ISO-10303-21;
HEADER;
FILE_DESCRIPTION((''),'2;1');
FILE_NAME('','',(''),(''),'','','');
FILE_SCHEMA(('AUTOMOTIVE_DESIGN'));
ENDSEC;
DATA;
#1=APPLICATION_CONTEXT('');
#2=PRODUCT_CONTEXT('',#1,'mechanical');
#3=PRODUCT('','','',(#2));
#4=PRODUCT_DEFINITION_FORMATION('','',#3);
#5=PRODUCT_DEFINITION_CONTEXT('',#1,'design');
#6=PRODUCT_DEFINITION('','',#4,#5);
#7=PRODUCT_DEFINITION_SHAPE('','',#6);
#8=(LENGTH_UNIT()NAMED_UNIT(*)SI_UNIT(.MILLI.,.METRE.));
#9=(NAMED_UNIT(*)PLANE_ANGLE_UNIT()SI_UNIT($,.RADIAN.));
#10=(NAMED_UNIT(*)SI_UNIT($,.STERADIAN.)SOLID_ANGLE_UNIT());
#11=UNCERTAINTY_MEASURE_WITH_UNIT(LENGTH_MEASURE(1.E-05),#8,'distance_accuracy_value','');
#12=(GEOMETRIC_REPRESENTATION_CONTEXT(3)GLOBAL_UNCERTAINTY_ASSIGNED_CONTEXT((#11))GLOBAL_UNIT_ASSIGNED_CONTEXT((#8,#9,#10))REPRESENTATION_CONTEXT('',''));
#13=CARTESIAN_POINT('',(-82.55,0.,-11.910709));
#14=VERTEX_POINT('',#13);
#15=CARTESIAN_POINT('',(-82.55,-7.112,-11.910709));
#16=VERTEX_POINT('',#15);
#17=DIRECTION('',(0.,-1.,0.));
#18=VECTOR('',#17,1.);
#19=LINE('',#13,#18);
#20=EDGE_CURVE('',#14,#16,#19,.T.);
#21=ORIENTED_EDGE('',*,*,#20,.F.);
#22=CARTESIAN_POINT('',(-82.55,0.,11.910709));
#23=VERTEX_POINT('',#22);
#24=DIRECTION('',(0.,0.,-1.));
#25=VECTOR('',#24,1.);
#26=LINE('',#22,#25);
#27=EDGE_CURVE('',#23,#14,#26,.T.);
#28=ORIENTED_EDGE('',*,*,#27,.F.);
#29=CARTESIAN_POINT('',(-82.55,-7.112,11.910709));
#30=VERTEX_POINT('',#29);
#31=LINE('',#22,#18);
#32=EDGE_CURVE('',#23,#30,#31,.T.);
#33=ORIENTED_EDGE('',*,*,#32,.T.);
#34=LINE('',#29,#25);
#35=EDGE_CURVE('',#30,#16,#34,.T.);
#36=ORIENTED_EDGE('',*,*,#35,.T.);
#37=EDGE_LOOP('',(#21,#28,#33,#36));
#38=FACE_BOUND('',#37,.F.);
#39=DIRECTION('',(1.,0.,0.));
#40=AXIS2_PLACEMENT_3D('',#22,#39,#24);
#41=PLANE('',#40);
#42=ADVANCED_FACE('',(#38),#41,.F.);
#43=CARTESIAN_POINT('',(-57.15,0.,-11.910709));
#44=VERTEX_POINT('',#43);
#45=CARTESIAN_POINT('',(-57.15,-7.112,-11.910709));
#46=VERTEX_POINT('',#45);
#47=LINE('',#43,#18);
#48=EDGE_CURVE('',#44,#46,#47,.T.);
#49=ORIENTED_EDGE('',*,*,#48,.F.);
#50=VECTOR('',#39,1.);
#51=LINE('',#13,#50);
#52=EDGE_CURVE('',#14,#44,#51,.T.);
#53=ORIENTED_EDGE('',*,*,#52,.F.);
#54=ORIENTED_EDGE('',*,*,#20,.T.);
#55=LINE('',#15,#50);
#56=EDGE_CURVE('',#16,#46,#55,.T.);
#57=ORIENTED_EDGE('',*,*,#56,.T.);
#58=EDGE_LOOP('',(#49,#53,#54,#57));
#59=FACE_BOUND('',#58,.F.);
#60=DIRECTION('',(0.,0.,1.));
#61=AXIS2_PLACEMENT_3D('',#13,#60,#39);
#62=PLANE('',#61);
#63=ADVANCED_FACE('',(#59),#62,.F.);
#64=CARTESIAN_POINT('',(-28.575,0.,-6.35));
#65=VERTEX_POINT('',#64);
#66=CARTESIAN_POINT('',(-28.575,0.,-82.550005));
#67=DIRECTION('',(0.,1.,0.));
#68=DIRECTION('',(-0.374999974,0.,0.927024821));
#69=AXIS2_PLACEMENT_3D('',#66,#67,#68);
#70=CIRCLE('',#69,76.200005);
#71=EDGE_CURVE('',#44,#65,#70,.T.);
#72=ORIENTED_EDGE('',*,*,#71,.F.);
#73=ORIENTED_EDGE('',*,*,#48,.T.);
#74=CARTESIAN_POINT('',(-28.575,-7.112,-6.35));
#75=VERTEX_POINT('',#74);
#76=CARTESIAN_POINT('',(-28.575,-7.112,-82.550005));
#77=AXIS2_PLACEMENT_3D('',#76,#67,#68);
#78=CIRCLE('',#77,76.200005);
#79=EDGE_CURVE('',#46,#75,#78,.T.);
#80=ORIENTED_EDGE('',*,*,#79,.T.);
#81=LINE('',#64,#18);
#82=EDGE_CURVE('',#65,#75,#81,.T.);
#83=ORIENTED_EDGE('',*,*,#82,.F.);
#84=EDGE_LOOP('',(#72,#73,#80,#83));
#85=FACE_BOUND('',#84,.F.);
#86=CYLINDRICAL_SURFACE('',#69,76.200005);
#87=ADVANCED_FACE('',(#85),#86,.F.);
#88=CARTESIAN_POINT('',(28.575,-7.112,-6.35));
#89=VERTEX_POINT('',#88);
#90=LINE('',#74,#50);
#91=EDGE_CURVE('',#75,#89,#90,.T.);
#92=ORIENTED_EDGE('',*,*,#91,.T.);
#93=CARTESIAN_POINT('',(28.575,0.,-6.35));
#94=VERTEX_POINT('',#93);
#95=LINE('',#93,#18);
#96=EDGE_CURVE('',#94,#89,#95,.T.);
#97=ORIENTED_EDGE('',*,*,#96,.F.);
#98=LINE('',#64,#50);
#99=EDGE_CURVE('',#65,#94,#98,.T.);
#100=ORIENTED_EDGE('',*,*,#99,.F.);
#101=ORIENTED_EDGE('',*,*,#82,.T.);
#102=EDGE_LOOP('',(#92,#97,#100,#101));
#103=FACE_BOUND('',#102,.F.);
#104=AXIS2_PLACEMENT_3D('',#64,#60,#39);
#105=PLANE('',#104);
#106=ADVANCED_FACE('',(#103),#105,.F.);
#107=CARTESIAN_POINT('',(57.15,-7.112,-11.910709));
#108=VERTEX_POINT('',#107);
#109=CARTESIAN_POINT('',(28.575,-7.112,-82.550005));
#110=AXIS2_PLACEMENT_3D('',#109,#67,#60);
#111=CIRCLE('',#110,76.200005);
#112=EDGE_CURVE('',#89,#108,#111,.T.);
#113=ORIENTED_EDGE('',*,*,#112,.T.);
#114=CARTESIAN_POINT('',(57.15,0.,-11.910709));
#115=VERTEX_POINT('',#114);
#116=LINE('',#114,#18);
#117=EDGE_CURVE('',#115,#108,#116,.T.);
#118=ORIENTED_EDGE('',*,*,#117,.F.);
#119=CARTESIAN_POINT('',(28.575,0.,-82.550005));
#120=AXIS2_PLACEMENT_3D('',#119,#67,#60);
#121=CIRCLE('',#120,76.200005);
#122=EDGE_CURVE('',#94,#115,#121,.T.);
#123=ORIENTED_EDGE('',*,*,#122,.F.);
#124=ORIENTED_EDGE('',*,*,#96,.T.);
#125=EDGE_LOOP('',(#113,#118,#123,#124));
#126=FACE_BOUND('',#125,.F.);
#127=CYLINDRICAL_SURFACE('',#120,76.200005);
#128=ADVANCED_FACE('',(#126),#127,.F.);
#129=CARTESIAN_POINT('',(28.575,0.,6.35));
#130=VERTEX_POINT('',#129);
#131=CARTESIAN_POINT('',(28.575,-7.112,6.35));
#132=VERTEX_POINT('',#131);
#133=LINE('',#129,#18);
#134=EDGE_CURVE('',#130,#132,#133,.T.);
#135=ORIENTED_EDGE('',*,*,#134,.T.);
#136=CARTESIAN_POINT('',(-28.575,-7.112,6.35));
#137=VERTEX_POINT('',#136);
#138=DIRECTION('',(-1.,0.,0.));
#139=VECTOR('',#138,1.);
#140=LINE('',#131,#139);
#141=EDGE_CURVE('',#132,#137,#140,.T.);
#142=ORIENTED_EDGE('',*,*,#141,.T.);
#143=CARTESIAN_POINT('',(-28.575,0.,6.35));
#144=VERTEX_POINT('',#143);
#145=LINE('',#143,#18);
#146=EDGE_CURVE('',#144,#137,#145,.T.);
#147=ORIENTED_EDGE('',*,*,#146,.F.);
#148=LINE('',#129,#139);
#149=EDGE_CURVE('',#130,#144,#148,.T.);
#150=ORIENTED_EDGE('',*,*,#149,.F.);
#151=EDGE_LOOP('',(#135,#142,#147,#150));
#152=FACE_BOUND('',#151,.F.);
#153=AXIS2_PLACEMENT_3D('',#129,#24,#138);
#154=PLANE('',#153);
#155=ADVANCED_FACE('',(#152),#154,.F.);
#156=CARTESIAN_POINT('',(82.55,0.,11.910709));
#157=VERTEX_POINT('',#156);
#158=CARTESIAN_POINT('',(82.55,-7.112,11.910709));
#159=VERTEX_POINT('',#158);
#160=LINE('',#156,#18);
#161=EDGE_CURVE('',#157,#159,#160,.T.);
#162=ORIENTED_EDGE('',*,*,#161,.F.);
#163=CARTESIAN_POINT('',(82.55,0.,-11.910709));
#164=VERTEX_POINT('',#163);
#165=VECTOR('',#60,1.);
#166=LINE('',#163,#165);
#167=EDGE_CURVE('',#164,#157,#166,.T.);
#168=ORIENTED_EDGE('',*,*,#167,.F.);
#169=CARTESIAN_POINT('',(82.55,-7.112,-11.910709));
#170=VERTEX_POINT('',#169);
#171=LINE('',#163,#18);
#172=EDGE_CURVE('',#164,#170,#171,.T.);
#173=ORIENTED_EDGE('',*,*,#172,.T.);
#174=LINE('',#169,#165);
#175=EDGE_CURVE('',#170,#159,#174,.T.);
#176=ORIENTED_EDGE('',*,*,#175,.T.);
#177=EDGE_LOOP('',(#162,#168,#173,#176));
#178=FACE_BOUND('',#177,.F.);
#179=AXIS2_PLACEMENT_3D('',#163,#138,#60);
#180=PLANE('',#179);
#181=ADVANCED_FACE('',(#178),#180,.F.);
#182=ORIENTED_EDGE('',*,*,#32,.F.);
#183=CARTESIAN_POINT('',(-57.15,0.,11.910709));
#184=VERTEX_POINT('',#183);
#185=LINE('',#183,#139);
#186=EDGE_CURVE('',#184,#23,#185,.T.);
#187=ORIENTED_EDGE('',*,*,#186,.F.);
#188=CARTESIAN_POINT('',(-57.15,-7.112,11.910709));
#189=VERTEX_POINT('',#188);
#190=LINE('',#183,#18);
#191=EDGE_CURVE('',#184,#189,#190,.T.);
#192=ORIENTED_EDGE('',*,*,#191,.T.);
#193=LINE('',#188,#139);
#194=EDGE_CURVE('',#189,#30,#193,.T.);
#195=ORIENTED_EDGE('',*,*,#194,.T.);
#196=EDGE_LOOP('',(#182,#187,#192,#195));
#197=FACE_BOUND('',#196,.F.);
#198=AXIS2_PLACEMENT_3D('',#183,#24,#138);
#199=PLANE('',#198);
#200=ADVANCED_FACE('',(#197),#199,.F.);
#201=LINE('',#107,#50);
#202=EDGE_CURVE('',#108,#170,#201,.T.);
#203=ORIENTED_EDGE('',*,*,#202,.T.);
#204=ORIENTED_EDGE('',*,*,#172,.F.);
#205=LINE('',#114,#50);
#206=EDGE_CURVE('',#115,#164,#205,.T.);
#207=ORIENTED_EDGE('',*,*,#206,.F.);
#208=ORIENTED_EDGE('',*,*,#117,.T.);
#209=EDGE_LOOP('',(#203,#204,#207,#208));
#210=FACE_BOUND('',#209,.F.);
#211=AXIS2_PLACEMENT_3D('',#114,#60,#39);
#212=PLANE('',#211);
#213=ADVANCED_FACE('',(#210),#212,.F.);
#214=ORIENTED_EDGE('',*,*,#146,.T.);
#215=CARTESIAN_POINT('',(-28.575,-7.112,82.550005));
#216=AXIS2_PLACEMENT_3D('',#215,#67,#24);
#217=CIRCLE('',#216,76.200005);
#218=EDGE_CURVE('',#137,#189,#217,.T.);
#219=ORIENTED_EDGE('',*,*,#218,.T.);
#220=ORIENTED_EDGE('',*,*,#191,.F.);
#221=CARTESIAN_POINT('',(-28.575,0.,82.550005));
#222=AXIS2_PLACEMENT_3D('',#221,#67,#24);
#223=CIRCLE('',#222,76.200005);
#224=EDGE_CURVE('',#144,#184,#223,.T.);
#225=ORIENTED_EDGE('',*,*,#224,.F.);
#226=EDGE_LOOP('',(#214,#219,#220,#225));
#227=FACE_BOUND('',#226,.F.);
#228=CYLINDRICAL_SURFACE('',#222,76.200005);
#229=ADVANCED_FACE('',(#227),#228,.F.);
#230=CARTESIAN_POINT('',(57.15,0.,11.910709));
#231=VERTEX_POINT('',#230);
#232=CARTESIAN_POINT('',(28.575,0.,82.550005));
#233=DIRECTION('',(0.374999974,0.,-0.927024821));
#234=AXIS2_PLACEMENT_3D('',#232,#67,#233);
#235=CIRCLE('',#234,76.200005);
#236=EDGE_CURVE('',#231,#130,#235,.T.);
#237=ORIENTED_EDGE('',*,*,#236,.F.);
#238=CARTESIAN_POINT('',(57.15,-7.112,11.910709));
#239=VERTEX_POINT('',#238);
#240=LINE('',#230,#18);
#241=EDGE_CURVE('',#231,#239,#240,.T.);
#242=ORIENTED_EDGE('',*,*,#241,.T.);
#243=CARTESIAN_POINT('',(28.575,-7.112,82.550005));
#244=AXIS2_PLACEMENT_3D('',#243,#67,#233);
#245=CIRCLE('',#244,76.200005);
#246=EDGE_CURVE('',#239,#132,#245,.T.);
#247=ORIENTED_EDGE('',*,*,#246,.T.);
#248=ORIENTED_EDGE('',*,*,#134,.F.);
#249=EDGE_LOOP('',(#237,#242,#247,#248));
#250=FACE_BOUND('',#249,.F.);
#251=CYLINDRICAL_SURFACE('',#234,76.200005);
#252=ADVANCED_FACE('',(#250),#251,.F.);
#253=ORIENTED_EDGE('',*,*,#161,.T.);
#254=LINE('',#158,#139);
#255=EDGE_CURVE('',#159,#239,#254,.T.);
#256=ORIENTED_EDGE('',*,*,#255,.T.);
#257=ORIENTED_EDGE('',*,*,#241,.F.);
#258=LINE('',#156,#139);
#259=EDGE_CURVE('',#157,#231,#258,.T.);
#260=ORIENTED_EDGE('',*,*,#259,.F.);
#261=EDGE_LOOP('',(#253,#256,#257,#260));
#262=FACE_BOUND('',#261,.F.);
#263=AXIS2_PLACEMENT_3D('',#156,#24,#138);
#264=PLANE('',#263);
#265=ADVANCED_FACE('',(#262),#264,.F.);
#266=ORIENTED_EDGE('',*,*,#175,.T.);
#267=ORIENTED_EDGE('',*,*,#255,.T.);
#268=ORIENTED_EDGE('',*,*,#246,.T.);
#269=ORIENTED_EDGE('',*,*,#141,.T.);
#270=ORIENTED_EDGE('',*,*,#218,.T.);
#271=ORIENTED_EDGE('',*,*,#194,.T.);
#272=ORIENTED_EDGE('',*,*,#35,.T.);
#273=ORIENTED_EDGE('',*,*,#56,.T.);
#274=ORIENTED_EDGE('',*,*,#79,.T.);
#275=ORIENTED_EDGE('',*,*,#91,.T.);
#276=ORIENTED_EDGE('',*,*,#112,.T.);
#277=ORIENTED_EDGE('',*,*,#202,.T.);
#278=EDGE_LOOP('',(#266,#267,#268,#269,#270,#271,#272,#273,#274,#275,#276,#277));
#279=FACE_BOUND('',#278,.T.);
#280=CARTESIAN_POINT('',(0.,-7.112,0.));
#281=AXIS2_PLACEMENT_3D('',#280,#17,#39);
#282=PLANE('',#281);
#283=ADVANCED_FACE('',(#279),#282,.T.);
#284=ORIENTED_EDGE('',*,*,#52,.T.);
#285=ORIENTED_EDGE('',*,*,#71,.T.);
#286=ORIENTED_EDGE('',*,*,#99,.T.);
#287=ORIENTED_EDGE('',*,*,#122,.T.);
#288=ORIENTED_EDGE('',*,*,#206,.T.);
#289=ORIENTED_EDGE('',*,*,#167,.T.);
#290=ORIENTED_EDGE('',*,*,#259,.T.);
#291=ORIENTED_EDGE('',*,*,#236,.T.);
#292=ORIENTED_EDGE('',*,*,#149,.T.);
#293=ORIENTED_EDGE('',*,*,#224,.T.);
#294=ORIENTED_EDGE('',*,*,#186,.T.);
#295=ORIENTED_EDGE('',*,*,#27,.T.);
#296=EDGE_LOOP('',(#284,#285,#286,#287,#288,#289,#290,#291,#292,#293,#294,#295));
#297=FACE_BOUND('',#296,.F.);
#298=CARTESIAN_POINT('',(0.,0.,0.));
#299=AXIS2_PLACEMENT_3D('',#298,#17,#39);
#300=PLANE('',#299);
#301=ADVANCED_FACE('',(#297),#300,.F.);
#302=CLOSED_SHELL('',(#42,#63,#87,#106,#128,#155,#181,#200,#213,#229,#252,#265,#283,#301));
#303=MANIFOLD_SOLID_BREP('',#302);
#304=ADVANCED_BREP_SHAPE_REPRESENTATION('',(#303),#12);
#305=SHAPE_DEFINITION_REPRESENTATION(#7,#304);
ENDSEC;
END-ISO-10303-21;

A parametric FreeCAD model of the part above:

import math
import FreeCAD as App
import Part
import Sketcher

V = App.Vector
Q = App.Units.Quantity

doc = App.newDocument("Part")
body = doc.addObject("PartDesign::Body", "Body")

# Sketch on XZ plane
sketch1 = body.newObject("Sketcher::SketchObject", "Sketch")
sketch1.AttachmentSupport = (doc.getObject("XZ_Plane"), [""])
sketch1.MapMode = "FlatFace"
sketch1.addGeometry([
    Part.LineSegment(V(29, 6, 0), V(-29, 6, 0)),  # 0
    Part.ArcOfCircle(Part.Circle(V(-29, 83, 0), V(0, 0, 1), 76), math.radians(-112), math.radians(-90)),  # 1
    Part.LineSegment(V(-57, 12, 0), V(-83, 12, 0)),  # 2
    Part.LineSegment(V(-83, 12, 0), V(-83, -12, 0)),  # 3
    Part.LineSegment(V(-83, -12, 0), V(-57, -12, 0)),  # 4
    Part.ArcOfCircle(Part.Circle(V(-29, -83, 0), V(0, 0, 1), 76), math.radians(90), math.radians(112)),  # 5
    Part.LineSegment(V(-29, -6, 0), V(29, -6, 0)),  # 6
    Part.ArcOfCircle(Part.Circle(V(29, -83, 0), V(0, 0, 1), 76), math.radians(68), math.radians(90)),  # 7
    Part.LineSegment(V(57, -12, 0), V(83, -12, 0)),  # 8
    Part.LineSegment(V(83, -12, 0), V(83, 12, 0)),  # 9
    Part.LineSegment(V(83, 12, 0), V(57, 12, 0)),  # 10
    Part.ArcOfCircle(Part.Circle(V(29, 83, 0), V(0, 0, 1), 76), math.radians(-90), math.radians(-68)),  # 11
], False)
sketch1.addConstraint([
    Sketcher.Constraint("Tangent", 0, 2, 1, 2),
    Sketcher.Constraint("Coincident", 1, 1, 2, 1),
    Sketcher.Constraint("Coincident", 2, 2, 3, 1),
    Sketcher.Constraint("Coincident", 3, 2, 4, 1),
    Sketcher.Constraint("Coincident", 4, 2, 5, 2),
    Sketcher.Constraint("Tangent", 5, 1, 6, 1),
    Sketcher.Constraint("Tangent", 6, 2, 7, 2),
    Sketcher.Constraint("Coincident", 7, 1, 8, 1),
    Sketcher.Constraint("Coincident", 8, 2, 9, 1),
    Sketcher.Constraint("Coincident", 9, 2, 10, 1),
    Sketcher.Constraint("Coincident", 10, 2, 11, 2),
    Sketcher.Constraint("Tangent", 11, 1, 0, 1),
    Sketcher.Constraint("Horizontal", 0),
    Sketcher.Constraint("Horizontal", 2),
    Sketcher.Constraint("Vertical", 3),
    Sketcher.Constraint("Horizontal", 4),
    Sketcher.Constraint("Horizontal", 6),
    Sketcher.Constraint("Horizontal", 8),
    Sketcher.Constraint("Vertical", 9),
    Sketcher.Constraint("Horizontal", 10),
    Sketcher.Constraint("Equal", 1, 5),
    Sketcher.Constraint("Equal", 5, 7),
    Sketcher.Constraint("Equal", 7, 11),
    Sketcher.Constraint("Symmetric", 1, 3, 7, 3, -1, 1),
    Sketcher.Constraint("Symmetric", 2, 2, 8, 2, -1, 1),
    Sketcher.Constraint("Symmetric", 4, 2, 10, 2, -1, 1),
    Sketcher.Constraint("Symmetric", 4, 2, 7, 1, -2),
    Sketcher.Constraint("DistanceX", 2, 2, 2, 1, Q("1 in")),
    Sketcher.Constraint("DistanceX", 0, 2, 0, 1, Q("2.25 in")),
    Sketcher.Constraint("DistanceY", 5, 1, 0, 2, Q("0.5 in")),
    Sketcher.Constraint("DistanceX", 1, 1, -1, 1, Q("2.25 in")),
    Sketcher.Constraint("Radius", 1, 76.200005),
])
pad1 = body.newObject("PartDesign::Pad", "Pad")
pad1.Profile = sketch1
pad1.Length = Q("0.28 in")

doc.recompute()
